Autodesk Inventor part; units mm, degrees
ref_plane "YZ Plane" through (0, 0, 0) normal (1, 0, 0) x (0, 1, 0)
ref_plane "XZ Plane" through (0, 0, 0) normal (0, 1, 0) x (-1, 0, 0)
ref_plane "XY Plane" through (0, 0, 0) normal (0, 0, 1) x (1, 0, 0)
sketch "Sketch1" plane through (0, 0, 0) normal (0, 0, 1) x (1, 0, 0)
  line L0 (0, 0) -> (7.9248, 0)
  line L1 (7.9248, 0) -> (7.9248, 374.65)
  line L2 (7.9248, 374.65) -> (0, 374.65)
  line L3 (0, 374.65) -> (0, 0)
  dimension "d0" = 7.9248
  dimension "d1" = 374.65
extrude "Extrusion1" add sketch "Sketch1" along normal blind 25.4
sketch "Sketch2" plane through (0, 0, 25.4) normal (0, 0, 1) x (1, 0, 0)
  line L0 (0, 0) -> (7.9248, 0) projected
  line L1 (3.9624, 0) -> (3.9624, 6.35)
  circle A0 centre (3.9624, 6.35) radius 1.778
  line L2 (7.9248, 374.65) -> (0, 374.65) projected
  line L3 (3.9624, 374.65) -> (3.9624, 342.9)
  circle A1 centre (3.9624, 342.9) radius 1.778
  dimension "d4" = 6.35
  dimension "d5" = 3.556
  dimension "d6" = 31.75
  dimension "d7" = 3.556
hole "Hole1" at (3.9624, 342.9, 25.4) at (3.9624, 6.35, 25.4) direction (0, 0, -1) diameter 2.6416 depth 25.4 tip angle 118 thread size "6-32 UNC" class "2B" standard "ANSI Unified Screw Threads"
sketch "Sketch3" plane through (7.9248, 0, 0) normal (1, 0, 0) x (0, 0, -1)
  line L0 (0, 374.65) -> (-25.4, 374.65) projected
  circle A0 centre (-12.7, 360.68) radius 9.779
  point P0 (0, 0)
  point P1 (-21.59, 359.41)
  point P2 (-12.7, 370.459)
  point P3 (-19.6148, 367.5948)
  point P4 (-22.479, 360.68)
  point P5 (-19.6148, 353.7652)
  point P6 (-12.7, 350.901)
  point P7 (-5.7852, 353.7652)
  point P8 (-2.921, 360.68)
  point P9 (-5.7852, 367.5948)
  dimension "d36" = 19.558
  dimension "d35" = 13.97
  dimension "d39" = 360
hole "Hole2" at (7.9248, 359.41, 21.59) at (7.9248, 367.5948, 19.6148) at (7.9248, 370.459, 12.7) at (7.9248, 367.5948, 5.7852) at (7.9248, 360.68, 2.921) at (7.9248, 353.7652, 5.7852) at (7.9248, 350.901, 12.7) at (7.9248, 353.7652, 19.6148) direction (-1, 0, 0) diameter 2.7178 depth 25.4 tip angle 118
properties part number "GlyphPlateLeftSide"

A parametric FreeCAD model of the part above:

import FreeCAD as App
import Part
import Sketcher
from FreeCAD import Vector
Q = App.Units.Quantity


def add_polygon(sketch, points):
    """Adds a closed chain of lines whose ends are joined by coincident constraints."""
    first, n = sketch.GeometryCount, len(points)
    for a, b in zip(points, points[1:] + points[:1]):
        sketch.addGeometry(Part.LineSegment(App.Vector(*a, 0), App.Vector(*b, 0)), False)
    for i in range(n):
        sketch.addConstraint(Sketcher.Constraint("Coincident", first + i, 2, first + (i + 1) % n, 1))

doc = App.newDocument("Part")
body = doc.addObject("PartDesign::Body", "Body")

sketch1 = doc.addObject("Sketcher::SketchObject", "Sketch")
body.addObject(sketch1)
sketch1.AttachmentSupport = (doc.XY_Plane, [""])
sketch1.MapMode = "FlatFace"
add_polygon(sketch1, [(0, 374.65), (0, 0), (7.9248, 0), (7.9248, 374.65)])
sketch1.addConstraint([
    Sketcher.Constraint("Vertical", 0),
    Sketcher.Constraint("Horizontal", 1),
    Sketcher.Constraint("Vertical", 2),
    Sketcher.Constraint("Horizontal", 3),
    Sketcher.Constraint("Coincident", 0, 2, -1, 1),
    Sketcher.Constraint("DistanceY", 0, 2, 0, 1, Q("14.75 in")),
    Sketcher.Constraint("DistanceX", 1, 1, 1, 2, Q("0.312 in")),
])
pad1 = doc.addObject("PartDesign::Pad", "Pad")
body.addObject(pad1)
pad1.Profile = sketch1
pad1.Length = Q("1 in")

sketch2 = doc.addObject("Sketcher::SketchObject", "Sketch001")
body.addObject(sketch2)
sketch2.AttachmentSupport = (doc.XY_Plane, [""])
sketch2.MapMode = "FlatFace"
sketch2.AttachmentOffset = App.Placement(Vector(0, 0, 1 * 25.4), App.Rotation())
sketch2.addGeometry([
    Part.Circle(Vector(3.9624, 342.9, 0), Vector(0, 0, 1), 1.3208),
    Part.Circle(Vector(3.9624, 6.35, 0), Vector(0, 0, 1), 1.3208),
], False)
sketch2.addConstraint([
    Sketcher.Constraint("Equal", 0, 1),
    Sketcher.Constraint("Vertical", 0, 3, 1, 3),
    Sketcher.Constraint("Diameter", 0, Q("0.104 in")),
    Sketcher.Constraint("DistanceY", -1, 1, 0, 3, Q("13.5 in")),
    Sketcher.Constraint("DistanceY", -1, 1, 1, 3, Q("0.25 in")),
    Sketcher.Constraint("DistanceX", -1, 1, 0, 3, Q("0.156 in")),
])
doc.recompute()
hole = doc.addObject("PartDesign::Hole", "Hole")
body.addObject(hole)
hole.Profile = sketch2
hole.ThreadType = "None"
hole.Diameter = Q("0.104 in")
hole.DepthType = "Dimension"
hole.Depth = Q("1 in")
hole.DrillPoint = "Angled"
hole.DrillPointAngle = 118

sketch3 = doc.addObject("Sketcher::SketchObject", "Sketch002")
body.addObject(sketch3)
sketch3.AttachmentSupport = (doc.YZ_Plane, [""])
sketch3.MapMode = "FlatFace"
sketch3.AttachmentOffset = App.Placement(Vector(0, 0, 0.312 * 25.4), App.Rotation())
sketch3.addGeometry([
    Part.Circle(Vector(359.41, 21.59, 0), Vector(0, 0, 1), 1.3589),
    Part.Circle(Vector(367.5948, 19.6148, 0), Vector(0, 0, 1), 1.3589),
    Part.Circle(Vector(370.459, 12.7, 0), Vector(0, 0, 1), 1.3589),
    Part.Circle(Vector(367.5948, 5.7852, 0), Vector(0, 0, 1), 1.3589),
    Part.Circle(Vector(360.68, 2.921, 0), Vector(0, 0, 1), 1.3589),
    Part.Circle(Vector(353.7652, 5.7852, 0), Vector(0, 0, 1), 1.3589),
    Part.Circle(Vector(350.901, 12.7, 0), Vector(0, 0, 1), 1.3589),
    Part.Circle(Vector(353.7652, 19.6148, 0), Vector(0, 0, 1), 1.3589),
], False)
sketch3.addConstraint([
    Sketcher.Constraint("Equal", 0, 1),
    Sketcher.Constraint("Equal", 1, 2),
    Sketcher.Constraint("Equal", 2, 3),
    Sketcher.Constraint("Equal", 3, 4),
    Sketcher.Constraint("Equal", 4, 5),
    Sketcher.Constraint("Equal", 5, 6),
    Sketcher.Constraint("Equal", 6, 7),
    Sketcher.Constraint("Horizontal", 3, 3, 5, 3),
    Sketcher.Constraint("Horizontal", 2, 3, 6, 3),
    Sketcher.Constraint("Horizontal", 1, 3, 7, 3),
    Sketcher.Constraint("Vertical", 1, 3, 3, 3),
    Sketcher.Constraint("Vertical", 5, 3, 7, 3),
    Sketcher.Constraint("Diameter", 0, Q("0.107 in")),
    Sketcher.Constraint("DistanceY", -1, 1, 2, 3, Q("0.5 in")),
    Sketcher.Constraint("DistanceX", -1, 1, 4, 3, Q("14.2 in")),
    Sketcher.Constraint("DistanceX", -1, 1, 0, 3, Q("14.15 in")),
    Sketcher.Constraint("DistanceY", -1, 1, 0, 3, Q("0.85 in")),
    Sketcher.Constraint("DistanceX", -1, 1, 2, 3, Q("14.585 in")),
    Sketcher.Constraint("DistanceY", -1, 1, 4, 3, Q("0.115 in")),
    Sketcher.Constraint("DistanceX", -1, 1, 6, 3, Q("13.815 in")),
    Sketcher.Constraint("DistanceX", -1, 1, 1, 3, Q("367.5948 mm")),
    Sketcher.Constraint("DistanceY", -1, 1, 1, 3, Q("19.6148 mm")),
    Sketcher.Constraint("DistanceY", -1, 1, 3, 3, Q("5.7852 mm")),
    Sketcher.Constraint("DistanceX", -1, 1, 5, 3, Q("353.7652 mm")),
])
doc.recompute()
hole2 = doc.addObject("PartDesign::Hole", "Hole001")
body.addObject(hole2)
hole2.Profile = sketch3
hole2.ThreadType = "None"
hole2.Diameter = Q("0.107 in")
hole2.DepthType = "Dimension"
hole2.Depth = Q("1 in")
hole2.DrillPoint = "Angled"
hole2.DrillPointAngle = 118

doc.recompute()
